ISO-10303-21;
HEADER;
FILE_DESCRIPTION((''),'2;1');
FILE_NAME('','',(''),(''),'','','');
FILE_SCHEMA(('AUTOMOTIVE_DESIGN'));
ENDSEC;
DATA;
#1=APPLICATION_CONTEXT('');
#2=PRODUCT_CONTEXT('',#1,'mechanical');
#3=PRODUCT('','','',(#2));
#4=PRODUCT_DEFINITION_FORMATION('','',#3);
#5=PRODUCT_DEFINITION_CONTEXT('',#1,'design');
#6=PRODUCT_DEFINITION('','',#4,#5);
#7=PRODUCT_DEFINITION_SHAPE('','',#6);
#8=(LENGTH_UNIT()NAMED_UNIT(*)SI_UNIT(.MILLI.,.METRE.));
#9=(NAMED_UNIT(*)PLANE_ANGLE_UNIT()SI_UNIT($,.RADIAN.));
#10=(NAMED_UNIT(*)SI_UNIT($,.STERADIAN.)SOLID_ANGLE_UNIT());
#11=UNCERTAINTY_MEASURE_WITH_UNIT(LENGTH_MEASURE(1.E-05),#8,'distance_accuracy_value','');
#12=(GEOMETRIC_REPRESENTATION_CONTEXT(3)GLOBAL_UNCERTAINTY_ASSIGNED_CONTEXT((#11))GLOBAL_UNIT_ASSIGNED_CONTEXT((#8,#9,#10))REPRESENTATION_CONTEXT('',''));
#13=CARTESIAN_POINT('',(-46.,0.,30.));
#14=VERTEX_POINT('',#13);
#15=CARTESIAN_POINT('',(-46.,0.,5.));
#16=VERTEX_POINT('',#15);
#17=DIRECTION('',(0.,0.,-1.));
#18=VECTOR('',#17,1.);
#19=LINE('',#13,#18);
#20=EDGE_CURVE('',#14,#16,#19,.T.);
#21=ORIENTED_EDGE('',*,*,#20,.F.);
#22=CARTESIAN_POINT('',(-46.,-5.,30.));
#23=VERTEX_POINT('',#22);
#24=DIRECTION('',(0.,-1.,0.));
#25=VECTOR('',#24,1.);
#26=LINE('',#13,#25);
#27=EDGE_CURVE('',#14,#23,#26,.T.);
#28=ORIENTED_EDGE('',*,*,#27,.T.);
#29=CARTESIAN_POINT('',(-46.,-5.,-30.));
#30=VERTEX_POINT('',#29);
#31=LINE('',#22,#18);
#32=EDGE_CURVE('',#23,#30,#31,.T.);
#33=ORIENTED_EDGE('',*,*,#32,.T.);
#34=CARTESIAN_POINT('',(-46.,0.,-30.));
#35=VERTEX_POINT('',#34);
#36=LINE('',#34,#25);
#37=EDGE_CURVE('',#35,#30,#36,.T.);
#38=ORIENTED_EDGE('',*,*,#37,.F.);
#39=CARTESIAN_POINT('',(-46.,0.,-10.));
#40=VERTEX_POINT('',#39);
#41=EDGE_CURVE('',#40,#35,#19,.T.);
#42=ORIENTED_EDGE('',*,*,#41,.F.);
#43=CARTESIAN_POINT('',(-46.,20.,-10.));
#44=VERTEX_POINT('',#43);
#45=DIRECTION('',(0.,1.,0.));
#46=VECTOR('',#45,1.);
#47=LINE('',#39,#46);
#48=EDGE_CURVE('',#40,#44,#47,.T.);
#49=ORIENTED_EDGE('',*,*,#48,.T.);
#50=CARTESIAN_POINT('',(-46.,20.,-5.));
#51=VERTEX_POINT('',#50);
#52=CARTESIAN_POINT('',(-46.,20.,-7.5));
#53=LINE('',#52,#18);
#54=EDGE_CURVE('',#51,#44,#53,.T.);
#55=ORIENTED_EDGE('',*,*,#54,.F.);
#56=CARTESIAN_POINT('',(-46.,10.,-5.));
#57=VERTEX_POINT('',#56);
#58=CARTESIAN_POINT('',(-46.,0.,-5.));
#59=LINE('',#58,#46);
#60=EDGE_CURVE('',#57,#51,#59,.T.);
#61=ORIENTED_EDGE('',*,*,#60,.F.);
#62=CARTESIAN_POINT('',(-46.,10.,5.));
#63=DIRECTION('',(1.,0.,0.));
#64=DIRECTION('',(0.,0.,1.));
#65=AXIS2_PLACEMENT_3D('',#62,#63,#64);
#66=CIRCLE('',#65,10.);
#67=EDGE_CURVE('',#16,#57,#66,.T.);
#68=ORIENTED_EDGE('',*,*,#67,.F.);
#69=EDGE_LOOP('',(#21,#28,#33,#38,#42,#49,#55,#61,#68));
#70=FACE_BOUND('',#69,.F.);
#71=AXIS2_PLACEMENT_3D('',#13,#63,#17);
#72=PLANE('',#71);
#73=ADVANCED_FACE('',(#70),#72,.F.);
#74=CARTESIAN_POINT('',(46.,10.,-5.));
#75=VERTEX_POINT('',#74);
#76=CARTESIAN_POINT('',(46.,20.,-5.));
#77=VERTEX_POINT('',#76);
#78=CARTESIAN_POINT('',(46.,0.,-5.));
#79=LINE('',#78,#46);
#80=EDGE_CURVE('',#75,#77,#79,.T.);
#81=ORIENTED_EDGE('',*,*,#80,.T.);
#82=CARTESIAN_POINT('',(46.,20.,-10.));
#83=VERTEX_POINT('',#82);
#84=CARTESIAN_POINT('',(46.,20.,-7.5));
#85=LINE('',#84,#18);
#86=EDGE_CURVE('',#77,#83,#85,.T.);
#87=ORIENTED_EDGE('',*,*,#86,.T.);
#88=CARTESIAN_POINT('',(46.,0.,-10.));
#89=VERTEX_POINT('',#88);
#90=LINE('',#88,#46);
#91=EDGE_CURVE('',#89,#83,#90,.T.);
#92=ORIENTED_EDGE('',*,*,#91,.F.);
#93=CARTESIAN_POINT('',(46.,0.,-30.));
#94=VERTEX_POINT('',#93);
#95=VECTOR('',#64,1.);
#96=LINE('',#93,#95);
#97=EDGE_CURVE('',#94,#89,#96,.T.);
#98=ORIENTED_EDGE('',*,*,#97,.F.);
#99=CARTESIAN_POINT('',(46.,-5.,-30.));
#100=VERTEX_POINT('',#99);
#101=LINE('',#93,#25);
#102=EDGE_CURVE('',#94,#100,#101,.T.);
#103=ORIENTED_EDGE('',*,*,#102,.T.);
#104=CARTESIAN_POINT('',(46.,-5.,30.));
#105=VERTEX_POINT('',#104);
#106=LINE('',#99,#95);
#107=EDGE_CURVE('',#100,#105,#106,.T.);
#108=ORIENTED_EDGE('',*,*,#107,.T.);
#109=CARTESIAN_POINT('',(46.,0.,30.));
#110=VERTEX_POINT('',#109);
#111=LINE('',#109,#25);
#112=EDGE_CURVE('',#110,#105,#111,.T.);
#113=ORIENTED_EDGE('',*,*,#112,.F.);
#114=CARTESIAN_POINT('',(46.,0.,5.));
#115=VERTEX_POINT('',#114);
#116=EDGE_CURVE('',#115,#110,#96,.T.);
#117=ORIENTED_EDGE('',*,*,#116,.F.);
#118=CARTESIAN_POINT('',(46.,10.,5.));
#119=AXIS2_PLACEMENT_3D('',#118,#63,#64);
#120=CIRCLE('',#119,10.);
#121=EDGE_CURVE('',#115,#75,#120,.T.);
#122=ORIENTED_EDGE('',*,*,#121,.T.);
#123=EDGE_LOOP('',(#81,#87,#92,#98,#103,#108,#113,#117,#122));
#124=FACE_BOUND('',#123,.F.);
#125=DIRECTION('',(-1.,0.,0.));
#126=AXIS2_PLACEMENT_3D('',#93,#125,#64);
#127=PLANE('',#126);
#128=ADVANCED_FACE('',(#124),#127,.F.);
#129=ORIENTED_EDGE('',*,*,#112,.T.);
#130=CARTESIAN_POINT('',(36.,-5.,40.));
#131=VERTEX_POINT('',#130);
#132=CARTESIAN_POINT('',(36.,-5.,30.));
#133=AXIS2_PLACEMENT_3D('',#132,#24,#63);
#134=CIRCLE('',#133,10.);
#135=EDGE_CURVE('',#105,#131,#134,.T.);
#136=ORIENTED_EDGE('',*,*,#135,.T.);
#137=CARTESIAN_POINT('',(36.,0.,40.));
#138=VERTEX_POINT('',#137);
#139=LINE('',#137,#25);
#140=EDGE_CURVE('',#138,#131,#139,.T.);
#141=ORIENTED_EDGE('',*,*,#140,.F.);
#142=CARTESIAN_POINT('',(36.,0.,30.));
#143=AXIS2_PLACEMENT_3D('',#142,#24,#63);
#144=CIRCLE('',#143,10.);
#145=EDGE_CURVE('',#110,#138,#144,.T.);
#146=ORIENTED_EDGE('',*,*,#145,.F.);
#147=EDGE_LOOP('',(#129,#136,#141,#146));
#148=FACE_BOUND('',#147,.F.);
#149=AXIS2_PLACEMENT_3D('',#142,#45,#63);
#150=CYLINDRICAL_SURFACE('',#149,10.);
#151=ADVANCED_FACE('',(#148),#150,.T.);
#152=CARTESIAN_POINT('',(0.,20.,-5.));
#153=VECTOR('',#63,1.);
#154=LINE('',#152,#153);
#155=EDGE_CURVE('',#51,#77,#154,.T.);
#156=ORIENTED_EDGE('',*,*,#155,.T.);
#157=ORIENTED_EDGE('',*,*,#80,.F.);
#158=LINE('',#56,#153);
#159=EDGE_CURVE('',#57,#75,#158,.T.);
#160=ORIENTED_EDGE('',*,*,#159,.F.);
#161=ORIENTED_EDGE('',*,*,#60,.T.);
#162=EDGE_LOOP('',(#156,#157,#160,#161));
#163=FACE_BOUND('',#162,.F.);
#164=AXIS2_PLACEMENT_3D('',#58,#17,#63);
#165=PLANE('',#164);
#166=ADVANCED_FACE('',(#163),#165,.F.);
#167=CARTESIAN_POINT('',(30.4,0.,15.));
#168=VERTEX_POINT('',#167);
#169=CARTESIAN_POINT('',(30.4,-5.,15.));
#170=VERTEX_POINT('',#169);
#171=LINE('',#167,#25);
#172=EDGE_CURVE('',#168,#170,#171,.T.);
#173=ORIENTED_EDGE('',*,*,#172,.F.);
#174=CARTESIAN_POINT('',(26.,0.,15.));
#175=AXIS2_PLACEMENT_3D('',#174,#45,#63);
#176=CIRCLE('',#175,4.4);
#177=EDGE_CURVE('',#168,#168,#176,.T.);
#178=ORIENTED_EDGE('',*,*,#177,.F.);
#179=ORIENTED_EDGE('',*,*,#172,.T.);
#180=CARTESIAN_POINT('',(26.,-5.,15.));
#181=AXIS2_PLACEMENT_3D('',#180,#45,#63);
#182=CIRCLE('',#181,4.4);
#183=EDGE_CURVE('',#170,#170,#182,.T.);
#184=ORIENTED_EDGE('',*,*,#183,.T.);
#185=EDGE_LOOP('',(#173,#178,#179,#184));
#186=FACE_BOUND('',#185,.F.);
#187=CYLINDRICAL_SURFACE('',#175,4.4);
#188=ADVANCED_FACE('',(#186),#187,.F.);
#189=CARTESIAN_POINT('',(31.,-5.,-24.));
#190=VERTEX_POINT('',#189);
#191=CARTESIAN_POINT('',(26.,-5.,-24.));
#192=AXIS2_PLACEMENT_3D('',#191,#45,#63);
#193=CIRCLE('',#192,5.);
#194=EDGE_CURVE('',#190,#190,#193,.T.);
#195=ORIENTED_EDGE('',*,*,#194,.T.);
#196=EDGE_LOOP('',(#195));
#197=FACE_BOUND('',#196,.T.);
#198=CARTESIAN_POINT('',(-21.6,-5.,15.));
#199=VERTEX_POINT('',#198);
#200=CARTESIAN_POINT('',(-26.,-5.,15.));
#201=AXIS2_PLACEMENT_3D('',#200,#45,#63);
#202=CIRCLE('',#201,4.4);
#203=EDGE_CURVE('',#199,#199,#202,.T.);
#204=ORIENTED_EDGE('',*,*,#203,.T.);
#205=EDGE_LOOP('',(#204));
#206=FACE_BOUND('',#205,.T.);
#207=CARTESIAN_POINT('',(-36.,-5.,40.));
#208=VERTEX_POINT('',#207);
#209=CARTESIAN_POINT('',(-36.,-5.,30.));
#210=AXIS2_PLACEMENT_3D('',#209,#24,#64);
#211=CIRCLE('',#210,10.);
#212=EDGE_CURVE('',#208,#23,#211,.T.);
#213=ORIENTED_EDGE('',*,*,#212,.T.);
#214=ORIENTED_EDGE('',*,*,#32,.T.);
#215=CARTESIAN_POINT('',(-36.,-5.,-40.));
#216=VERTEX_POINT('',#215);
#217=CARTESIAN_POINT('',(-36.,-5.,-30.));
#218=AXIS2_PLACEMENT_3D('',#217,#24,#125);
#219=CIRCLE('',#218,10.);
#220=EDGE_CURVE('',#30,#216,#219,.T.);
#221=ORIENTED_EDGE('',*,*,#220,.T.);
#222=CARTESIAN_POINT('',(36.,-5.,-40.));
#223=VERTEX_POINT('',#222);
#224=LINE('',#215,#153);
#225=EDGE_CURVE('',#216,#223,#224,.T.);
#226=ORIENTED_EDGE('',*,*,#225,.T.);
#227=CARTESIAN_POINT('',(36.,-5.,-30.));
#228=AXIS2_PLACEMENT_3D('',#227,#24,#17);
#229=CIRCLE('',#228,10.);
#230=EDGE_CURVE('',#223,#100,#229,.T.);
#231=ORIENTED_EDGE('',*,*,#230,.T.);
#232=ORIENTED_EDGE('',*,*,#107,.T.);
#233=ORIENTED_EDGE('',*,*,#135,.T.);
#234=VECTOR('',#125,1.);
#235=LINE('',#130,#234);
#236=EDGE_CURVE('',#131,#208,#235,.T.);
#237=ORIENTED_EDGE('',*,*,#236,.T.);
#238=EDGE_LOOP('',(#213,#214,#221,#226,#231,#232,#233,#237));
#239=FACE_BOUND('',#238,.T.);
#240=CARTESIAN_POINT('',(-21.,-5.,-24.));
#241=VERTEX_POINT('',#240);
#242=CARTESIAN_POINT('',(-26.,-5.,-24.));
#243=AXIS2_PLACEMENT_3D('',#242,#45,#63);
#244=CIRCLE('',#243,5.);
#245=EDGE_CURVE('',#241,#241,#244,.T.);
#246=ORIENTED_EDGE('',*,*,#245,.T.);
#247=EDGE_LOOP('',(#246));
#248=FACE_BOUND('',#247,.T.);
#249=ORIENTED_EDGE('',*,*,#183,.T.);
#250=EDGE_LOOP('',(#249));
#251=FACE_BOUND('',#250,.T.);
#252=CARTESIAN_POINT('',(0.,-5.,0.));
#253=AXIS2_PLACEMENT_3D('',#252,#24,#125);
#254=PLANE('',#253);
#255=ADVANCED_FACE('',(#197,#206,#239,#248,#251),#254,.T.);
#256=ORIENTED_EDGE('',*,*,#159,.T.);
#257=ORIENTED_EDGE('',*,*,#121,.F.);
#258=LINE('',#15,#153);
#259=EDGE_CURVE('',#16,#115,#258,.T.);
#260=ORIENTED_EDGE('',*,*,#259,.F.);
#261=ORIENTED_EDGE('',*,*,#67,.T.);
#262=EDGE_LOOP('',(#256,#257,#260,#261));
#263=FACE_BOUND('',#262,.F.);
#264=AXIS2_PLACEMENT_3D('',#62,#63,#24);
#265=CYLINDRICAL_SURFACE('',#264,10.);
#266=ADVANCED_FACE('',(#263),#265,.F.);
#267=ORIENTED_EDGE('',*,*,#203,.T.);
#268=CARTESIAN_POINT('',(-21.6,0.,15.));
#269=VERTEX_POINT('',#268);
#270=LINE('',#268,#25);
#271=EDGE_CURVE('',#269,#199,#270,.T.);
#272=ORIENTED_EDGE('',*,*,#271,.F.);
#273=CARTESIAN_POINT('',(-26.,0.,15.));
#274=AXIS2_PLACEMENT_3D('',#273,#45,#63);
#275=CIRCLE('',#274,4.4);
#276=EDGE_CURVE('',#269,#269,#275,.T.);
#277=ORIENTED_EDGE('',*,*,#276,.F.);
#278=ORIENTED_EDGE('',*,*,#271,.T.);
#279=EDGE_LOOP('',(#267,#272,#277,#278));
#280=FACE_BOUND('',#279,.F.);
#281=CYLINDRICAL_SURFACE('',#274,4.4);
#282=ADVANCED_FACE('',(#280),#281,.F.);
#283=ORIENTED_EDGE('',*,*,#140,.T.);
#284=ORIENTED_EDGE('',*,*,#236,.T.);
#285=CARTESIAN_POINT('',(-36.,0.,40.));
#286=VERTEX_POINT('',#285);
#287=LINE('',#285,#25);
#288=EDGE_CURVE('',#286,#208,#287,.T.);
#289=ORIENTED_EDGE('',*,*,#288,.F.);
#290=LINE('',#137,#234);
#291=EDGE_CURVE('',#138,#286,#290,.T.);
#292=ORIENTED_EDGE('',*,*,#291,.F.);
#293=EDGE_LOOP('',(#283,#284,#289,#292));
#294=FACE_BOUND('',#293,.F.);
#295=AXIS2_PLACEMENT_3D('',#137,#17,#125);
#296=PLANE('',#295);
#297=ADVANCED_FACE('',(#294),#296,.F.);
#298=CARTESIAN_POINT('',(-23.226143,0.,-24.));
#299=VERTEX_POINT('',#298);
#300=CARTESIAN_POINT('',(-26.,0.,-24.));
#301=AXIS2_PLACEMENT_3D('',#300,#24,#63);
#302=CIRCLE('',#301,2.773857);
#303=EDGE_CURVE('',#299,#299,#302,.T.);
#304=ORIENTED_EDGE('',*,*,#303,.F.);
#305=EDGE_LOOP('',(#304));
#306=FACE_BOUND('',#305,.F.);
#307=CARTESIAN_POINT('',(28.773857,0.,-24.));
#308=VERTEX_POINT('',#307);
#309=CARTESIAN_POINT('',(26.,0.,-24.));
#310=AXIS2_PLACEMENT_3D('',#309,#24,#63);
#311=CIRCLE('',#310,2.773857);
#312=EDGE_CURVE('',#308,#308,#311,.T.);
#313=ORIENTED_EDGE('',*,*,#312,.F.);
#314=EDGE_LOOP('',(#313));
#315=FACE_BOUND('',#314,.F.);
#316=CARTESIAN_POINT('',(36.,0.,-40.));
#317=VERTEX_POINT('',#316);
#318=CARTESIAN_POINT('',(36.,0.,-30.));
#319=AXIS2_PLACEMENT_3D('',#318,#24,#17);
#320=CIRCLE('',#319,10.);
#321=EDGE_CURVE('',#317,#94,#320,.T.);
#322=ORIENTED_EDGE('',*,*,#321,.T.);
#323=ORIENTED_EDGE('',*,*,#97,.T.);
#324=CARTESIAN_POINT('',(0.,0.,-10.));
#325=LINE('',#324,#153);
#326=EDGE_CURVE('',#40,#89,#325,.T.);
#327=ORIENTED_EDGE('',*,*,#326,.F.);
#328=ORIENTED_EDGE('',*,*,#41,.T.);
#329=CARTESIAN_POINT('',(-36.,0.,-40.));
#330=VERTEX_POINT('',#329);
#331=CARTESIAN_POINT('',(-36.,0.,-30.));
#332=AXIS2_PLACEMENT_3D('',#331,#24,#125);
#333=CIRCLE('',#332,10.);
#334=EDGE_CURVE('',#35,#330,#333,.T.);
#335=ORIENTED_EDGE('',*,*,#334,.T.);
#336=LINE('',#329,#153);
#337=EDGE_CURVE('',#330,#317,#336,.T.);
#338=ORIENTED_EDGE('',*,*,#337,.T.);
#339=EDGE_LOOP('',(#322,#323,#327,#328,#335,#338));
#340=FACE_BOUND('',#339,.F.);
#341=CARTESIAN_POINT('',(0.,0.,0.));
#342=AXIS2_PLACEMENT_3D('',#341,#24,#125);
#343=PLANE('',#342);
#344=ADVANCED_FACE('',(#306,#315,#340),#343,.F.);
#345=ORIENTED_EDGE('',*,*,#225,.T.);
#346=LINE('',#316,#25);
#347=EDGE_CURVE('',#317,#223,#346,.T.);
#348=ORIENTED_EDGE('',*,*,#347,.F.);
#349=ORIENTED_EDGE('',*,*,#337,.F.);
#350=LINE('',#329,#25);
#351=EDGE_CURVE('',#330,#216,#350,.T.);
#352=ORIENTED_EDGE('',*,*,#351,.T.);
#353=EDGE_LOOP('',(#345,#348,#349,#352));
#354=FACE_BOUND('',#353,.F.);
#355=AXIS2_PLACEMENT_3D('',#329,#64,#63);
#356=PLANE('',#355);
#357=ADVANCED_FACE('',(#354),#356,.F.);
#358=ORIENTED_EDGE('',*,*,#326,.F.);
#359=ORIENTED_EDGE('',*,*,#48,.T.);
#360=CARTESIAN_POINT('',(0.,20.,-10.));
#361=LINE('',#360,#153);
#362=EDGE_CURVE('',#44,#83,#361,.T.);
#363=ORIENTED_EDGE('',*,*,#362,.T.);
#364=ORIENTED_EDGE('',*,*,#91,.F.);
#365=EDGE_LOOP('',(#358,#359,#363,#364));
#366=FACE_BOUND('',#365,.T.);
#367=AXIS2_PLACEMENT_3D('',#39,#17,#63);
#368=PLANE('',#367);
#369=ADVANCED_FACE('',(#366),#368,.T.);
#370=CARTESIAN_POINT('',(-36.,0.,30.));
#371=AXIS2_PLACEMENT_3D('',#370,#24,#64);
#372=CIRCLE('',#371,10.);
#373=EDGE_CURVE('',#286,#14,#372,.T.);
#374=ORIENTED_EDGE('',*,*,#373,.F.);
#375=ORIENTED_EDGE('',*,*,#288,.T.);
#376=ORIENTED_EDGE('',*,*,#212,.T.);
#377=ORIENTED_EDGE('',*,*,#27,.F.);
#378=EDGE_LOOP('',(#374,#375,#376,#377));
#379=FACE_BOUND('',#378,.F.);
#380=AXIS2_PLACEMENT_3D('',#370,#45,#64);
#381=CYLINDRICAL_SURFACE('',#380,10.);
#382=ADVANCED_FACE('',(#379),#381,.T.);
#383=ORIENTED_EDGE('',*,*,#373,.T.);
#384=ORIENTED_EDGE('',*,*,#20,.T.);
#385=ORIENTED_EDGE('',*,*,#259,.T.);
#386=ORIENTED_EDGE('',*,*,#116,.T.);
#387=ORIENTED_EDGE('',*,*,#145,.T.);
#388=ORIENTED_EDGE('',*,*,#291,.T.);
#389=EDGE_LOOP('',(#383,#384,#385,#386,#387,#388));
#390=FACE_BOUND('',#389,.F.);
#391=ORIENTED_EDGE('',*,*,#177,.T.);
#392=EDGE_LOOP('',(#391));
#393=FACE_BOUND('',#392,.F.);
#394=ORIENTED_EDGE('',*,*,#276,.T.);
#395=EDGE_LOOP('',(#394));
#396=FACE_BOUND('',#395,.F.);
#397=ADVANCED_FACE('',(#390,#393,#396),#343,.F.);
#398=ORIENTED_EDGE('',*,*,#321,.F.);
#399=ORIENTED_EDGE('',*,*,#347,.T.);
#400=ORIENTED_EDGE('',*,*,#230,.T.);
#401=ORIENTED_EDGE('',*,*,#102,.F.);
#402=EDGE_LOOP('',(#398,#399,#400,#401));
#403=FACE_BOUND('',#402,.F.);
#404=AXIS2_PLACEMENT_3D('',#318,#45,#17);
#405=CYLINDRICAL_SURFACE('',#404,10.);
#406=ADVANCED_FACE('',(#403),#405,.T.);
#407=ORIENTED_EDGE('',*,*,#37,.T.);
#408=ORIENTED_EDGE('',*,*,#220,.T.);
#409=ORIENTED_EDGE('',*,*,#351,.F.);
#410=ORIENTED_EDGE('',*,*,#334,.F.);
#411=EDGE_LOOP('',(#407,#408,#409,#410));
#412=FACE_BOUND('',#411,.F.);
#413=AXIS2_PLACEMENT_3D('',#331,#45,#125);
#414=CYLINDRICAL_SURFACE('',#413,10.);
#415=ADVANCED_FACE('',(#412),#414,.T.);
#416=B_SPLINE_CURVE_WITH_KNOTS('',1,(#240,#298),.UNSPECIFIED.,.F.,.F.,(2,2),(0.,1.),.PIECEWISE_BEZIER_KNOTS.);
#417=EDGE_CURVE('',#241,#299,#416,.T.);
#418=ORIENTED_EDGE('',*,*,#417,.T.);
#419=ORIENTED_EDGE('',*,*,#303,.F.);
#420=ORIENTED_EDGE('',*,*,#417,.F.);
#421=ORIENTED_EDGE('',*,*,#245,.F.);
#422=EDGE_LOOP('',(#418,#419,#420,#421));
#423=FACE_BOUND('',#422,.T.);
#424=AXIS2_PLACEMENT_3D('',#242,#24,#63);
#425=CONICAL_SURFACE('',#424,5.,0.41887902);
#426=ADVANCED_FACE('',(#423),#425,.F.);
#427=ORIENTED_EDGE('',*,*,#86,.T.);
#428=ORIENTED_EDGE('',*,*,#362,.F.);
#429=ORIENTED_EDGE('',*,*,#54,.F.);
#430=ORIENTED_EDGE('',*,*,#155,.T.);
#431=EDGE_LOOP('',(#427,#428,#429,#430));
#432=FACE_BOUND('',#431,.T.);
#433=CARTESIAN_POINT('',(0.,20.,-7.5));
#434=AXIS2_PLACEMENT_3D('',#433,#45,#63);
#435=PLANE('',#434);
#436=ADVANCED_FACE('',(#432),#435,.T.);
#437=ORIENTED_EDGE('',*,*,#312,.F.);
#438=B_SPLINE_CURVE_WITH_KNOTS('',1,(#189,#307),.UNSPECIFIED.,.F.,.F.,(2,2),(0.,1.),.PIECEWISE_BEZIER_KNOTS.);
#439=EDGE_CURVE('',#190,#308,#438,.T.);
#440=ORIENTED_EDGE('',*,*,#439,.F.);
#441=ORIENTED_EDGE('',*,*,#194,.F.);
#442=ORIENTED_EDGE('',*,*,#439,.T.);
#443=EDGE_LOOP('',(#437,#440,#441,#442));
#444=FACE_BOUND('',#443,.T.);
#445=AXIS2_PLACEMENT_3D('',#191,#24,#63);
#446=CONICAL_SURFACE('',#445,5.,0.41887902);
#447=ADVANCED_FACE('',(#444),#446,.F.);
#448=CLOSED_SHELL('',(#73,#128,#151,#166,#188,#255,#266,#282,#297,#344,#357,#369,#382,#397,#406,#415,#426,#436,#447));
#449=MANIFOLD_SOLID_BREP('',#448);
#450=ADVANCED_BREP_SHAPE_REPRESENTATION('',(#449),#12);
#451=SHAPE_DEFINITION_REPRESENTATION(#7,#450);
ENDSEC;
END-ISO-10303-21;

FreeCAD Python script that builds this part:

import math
import FreeCAD as App
import Part
import Sketcher
from FreeCAD import Vector
Q = App.Units.Quantity


def edges_at(feature, points):
    """Names of the edges that pass closest to the given points."""
    edges = feature.Shape.Edges
    near = lambda p: min(range(len(edges)), key=lambda i: edges[i].distToShape(Part.Vertex(*p))[0])
    return sorted({f"Edge{near(p) + 1}" for p in points})

doc = App.newDocument("Part")
body = doc.addObject("PartDesign::Body", "Body")

sketch1 = body.newObject("Sketcher::SketchObject", "Sketch")
sketch1.AttachmentSupport = (doc.getObject("XZ_Plane"), [""])
sketch1.MapMode = "FlatFace"
sketch1.addGeometry([
    Part.LineSegment(Vector(36, -40, 0), Vector(-36, -40, 0)),
    Part.ArcOfCircle(Part.Circle(Vector(-36, -30, 0), Vector(0, 0, 1), 10), math.radians(180), math.radians(270)),
    Part.LineSegment(Vector(-46, -30, 0), Vector(-46, 30, 0)),
    Part.ArcOfCircle(Part.Circle(Vector(-36, 30, 0), Vector(0, 0, 1), 10), math.radians(90), math.radians(180)),
    Part.LineSegment(Vector(-36, 40, 0), Vector(36, 40, 0)),
    Part.ArcOfCircle(Part.Circle(Vector(36, 30, 0), Vector(0, 0, 1), 10), math.radians(0), math.radians(90)),
    Part.LineSegment(Vector(46, 30, 0), Vector(46, -30, 0)),
    Part.ArcOfCircle(Part.Circle(Vector(36, -30, 0), Vector(0, 0, 1), 10), math.radians(-90), math.radians(0)),
    Part.Circle(Vector(26, 15, 0), Vector(0, 0, 1), 4.4),
    Part.Circle(Vector(-26, 15, 0), Vector(0, 0, 1), 4.4),
], False)
sketch1.addConstraint([
    Sketcher.Constraint("Tangent", 0, 2, 1, 2),
    Sketcher.Constraint("Tangent", 1, 1, 2, 1),
    Sketcher.Constraint("Tangent", 2, 2, 3, 2),
    Sketcher.Constraint("Tangent", 3, 1, 4, 1),
    Sketcher.Constraint("Tangent", 4, 2, 5, 2),
    Sketcher.Constraint("Tangent", 5, 1, 6, 1),
    Sketcher.Constraint("Tangent", 6, 2, 7, 2),
    Sketcher.Constraint("Tangent", 7, 1, 0, 1),
    Sketcher.Constraint("Horizontal", 0),
    Sketcher.Constraint("Vertical", 2),
    Sketcher.Constraint("Horizontal", 4),
    Sketcher.Constraint("Vertical", 6),
    Sketcher.Constraint("Equal", 1, 3),
    Sketcher.Constraint("Equal", 3, 5),
    Sketcher.Constraint("Equal", 5, 7),
    Sketcher.Constraint("Equal", 8, 9),
    Sketcher.Constraint("Symmetric", 1, 3, 5, 3, -1, 1),
    Sketcher.Constraint("Symmetric", 8, 3, 9, 3, -2),
    Sketcher.Constraint("Radius", 1, Q("10 mm")),
    Sketcher.Constraint("Diameter", 8, Q("8.8 mm")),
    Sketcher.Constraint("DistanceX", 0, 2, 0, 1, Q("72 mm")),
    Sketcher.Constraint("DistanceY", 2, 1, 2, 2, Q("60 mm")),
    Sketcher.Constraint("DistanceX", -1, 1, 8, 3, Q("26 mm")),
    Sketcher.Constraint("DistanceY", -1, 1, 8, 3, Q("15 mm")),
])
pad1 = body.newObject("PartDesign::Pad", "Pad")
pad1.Profile = sketch1
pad1.Length = 5

sketch2 = body.newObject("Sketcher::SketchObject", "Sketch001")
sketch2.AttachmentSupport = (doc.getObject("XZ_Plane"), [""])
sketch2.MapMode = "FlatFace"
sketch2.addGeometry([
    Part.LineSegment(Vector(-46, -10, 0), Vector(-46, -5, 0)),
    Part.LineSegment(Vector(-46, -5, 0), Vector(46, -5, 0)),
    Part.LineSegment(Vector(46, -5, 0), Vector(46, -10, 0)),
    Part.LineSegment(Vector(46, -10, 0), Vector(-46, -10, 0)),
], False)
sketch2.addConstraint([
    Sketcher.Constraint("Coincident", 0, 2, 1, 1),
    Sketcher.Constraint("Coincident", 1, 2, 2, 1),
    Sketcher.Constraint("Coincident", 2, 2, 3, 1),
    Sketcher.Constraint("Coincident", 3, 2, 0, 1),
    Sketcher.Constraint("Vertical", 0),
    Sketcher.Constraint("Horizontal", 1),
    Sketcher.Constraint("Vertical", 2),
    Sketcher.Constraint("Horizontal", 3),
    Sketcher.Constraint("DistanceX", 1, 1, 1, 2, Q("92 mm")),
    Sketcher.Constraint("DistanceY", 0, 1, 0, 2, Q("5 mm")),
    Sketcher.Constraint("DistanceX", 0, 2, -1, 1, Q("46 mm")),
    Sketcher.Constraint("DistanceY", 0, 2, -1, 1, Q("5 mm")),
])
pad2 = body.newObject("PartDesign::Pad", "Pad001")
pad2.Profile = sketch2
pad2.Length = 20
pad2.Reversed = True
doc.recompute()

fillet = body.newObject("PartDesign::Fillet", "Fillet")
fillet.Base = (pad2, edges_at(pad2, [(0, 0, -5)]))
fillet.Radius = 10

sketch3 = body.newObject("Sketcher::SketchObject", "Sketch002")
sketch3.AttachmentSupport = (doc.getObject("XZ_Plane"), [""])
sketch3.MapMode = "FlatFace"
sketch3.AttachmentOffset = App.Placement(Vector(0, 0, 5), App.Rotation())
sketch3.addGeometry([
    Part.Circle(Vector(-26, -24, 0), Vector(0, 0, 1), 5),
    Part.Circle(Vector(26, -24, 0), Vector(0, 0, 1), 5),
], False)
sketch3.addConstraint([
    Sketcher.Constraint("Equal", 0, 1),
    Sketcher.Constraint("Symmetric", 0, 3, 1, 3, -2),
    Sketcher.Constraint("Diameter", 0, Q("10 mm")),
    Sketcher.Constraint("DistanceX", 0, 3, -1, 1, Q("26 mm")),
    Sketcher.Constraint("DistanceY", 0, 3, -1, 1, Q("24 mm")),
])
pocket1 = body.newObject("PartDesign::Pocket", "Pocket")
pocket1.Profile = sketch3
pocket1.Length = 5
pocket1.TaperAngle = -24

doc.recompute()
